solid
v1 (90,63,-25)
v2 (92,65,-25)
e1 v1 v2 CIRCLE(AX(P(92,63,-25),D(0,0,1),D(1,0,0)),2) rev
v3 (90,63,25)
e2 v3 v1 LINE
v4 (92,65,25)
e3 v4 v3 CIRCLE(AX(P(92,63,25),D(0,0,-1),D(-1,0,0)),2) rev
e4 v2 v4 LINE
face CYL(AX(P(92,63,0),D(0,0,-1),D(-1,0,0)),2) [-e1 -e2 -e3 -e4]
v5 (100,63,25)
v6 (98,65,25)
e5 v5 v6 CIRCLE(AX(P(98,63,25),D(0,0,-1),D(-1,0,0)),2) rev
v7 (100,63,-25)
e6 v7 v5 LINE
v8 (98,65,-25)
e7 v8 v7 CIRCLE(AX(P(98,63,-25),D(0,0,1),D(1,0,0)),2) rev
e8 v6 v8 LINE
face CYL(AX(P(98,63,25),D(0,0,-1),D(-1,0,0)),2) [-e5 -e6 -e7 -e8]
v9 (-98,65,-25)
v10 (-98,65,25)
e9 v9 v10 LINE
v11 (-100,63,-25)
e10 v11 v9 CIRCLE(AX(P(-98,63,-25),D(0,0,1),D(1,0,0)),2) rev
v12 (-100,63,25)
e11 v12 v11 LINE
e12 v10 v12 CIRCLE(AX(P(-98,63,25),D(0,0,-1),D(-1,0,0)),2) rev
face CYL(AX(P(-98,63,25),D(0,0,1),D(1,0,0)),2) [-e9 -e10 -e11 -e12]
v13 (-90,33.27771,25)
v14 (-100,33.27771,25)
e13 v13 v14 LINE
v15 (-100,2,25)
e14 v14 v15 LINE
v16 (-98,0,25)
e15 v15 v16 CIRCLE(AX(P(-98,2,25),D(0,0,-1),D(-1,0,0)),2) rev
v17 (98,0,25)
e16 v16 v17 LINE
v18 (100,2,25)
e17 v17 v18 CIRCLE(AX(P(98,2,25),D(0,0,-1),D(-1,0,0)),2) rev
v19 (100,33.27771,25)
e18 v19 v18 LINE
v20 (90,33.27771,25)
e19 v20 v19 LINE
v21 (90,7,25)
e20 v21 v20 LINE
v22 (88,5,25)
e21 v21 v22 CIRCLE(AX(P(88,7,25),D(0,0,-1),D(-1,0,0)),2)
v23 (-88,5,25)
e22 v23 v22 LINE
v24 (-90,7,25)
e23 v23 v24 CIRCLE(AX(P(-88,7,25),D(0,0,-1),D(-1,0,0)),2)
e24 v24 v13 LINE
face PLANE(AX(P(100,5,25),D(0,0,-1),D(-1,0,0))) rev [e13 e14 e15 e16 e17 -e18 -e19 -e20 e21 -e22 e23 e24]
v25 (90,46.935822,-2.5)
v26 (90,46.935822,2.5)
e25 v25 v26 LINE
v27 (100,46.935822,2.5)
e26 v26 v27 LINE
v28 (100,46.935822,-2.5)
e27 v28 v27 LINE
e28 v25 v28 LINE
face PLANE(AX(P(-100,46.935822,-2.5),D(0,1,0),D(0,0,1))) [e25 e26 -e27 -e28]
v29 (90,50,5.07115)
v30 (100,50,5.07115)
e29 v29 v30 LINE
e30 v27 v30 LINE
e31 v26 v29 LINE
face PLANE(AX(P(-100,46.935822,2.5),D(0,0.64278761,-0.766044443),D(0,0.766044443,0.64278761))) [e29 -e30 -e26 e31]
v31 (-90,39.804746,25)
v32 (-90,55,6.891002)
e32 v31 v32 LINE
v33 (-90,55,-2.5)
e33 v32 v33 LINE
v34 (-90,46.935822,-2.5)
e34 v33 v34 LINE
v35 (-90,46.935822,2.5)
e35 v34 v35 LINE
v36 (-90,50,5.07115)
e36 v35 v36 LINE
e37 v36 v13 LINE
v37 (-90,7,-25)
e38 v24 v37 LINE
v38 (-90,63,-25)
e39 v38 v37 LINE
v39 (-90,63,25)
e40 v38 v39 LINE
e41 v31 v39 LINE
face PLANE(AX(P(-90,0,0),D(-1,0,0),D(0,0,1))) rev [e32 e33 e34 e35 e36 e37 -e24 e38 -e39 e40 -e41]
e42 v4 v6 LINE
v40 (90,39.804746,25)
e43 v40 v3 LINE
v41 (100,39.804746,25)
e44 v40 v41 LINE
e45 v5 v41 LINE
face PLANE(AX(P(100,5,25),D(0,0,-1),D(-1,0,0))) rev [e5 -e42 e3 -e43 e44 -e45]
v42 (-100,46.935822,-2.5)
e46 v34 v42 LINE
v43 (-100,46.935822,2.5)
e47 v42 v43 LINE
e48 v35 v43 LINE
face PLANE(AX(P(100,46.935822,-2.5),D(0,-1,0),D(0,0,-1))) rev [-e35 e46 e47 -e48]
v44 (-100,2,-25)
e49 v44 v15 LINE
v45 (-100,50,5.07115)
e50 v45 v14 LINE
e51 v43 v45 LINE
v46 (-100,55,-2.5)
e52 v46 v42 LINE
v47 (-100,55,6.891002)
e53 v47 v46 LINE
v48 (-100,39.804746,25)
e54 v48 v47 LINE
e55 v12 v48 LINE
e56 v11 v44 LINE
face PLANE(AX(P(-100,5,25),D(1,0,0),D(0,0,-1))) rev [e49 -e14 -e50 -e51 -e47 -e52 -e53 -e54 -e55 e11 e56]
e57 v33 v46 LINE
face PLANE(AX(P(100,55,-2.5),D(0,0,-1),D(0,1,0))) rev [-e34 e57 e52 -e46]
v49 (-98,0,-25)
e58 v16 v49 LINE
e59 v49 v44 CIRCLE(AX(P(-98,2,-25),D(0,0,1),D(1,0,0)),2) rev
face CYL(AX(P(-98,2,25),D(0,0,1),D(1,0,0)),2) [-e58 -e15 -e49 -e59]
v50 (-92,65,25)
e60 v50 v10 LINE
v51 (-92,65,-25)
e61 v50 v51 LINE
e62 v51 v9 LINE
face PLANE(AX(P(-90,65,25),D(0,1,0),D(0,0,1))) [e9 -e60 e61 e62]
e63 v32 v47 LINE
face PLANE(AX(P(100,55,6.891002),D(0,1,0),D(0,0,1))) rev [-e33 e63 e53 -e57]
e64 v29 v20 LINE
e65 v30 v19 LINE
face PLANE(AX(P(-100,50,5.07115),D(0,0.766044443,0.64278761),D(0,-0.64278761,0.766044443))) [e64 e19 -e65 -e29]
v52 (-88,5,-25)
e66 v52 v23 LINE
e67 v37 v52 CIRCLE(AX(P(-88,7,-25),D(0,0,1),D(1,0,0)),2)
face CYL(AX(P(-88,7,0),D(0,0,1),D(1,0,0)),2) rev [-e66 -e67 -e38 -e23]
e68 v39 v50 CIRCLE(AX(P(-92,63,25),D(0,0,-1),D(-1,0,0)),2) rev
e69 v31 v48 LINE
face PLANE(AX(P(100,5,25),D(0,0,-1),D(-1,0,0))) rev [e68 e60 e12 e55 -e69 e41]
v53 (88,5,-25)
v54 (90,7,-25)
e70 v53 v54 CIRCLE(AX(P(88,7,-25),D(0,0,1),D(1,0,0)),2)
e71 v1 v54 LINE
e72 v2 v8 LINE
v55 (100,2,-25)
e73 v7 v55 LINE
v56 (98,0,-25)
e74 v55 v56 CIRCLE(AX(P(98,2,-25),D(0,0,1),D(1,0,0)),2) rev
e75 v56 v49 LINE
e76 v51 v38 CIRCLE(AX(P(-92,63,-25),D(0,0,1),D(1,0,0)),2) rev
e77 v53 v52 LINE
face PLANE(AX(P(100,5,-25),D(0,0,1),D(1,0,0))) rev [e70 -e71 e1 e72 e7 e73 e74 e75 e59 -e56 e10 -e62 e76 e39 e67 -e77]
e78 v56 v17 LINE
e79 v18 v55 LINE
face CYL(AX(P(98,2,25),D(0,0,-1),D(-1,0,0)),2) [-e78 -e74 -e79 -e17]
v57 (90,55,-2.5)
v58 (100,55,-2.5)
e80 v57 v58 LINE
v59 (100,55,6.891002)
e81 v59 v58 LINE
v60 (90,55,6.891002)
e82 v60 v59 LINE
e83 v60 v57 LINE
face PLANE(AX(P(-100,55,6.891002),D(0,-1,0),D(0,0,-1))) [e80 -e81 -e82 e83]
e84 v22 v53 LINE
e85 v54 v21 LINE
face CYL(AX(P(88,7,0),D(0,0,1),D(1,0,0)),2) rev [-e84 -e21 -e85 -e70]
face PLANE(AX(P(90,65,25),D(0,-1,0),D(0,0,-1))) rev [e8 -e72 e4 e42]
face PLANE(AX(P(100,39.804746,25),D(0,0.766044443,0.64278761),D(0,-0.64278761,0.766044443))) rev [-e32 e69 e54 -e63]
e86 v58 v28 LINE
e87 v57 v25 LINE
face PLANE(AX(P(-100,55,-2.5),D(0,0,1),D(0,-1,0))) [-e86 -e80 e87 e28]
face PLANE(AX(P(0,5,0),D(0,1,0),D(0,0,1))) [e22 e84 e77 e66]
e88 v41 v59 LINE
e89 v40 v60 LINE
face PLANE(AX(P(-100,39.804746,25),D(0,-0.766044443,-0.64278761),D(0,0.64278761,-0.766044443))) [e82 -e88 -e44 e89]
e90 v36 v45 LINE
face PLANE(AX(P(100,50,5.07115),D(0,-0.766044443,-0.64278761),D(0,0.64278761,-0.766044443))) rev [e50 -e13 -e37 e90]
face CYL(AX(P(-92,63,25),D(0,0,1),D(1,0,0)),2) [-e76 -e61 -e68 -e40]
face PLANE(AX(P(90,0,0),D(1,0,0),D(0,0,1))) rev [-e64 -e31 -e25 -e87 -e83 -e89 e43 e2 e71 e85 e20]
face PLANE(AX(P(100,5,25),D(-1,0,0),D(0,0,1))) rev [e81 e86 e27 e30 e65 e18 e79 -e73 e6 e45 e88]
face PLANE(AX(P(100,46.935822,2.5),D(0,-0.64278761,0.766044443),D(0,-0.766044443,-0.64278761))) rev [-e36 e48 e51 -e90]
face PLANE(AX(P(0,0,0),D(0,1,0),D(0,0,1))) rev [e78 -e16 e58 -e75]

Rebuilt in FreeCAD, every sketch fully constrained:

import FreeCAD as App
import Part
import Sketcher

V = App.Vector
Q = App.Units.Quantity


def edges_at(feature, points):
    """Names of the edges that pass closest to the given points."""
    edges = feature.Shape.Edges
    near = lambda p: min(range(len(edges)), key=lambda i: edges[i].distToShape(Part.Vertex(*p))[0])
    return sorted({f"Edge{near(p) + 1}" for p in points})

doc = App.newDocument("Part")
body = doc.addObject("PartDesign::Body", "Body")

# Sketch on XZ plane
sketch1 = doc.addObject("Sketcher::SketchObject", "Sketch")
body.addObject(sketch1)
sketch1.AttachmentSupport = (doc.XZ_Plane, [""])
sketch1.MapMode = "FlatFace"
sketch1.addGeometry([
    Part.LineSegment(V(-100, -25, 0), V(-100, 25, 0)),
    Part.LineSegment(V(-100, 25, 0), V(100, 25, 0)),
    Part.LineSegment(V(100, 25, 0), V(100, -25, 0)),
    Part.LineSegment(V(100, -25, 0), V(-100, -25, 0)),
], False)
sketch1.addConstraint([
    Sketcher.Constraint("Coincident", 0, 2, 1, 1),
    Sketcher.Constraint("Coincident", 1, 2, 2, 1),
    Sketcher.Constraint("Coincident", 2, 2, 3, 1),
    Sketcher.Constraint("Coincident", 3, 2, 0, 1),
    Sketcher.Constraint("Vertical", 0),
    Sketcher.Constraint("Horizontal", 1),
    Sketcher.Constraint("Vertical", 2),
    Sketcher.Constraint("Horizontal", 3),
    Sketcher.Constraint("Symmetric", 0, 2, 2, 2, -1, 1),
    Sketcher.Constraint("DistanceX", 1, 1, 1, 2, Q("200 mm")),
    Sketcher.Constraint("DistanceY", 0, 1, 0, 2, Q("50 mm")),
])
pad1 = doc.addObject("PartDesign::Pad", "Pad")
body.addObject(pad1)
pad1.Profile = sketch1
pad1.Length = 5
pad1.Reversed = True

# Sketch on YZ plane
sketch2 = doc.addObject("Sketcher::SketchObject", "Sketch001")
body.addObject(sketch2)
sketch2.AttachmentSupport = (doc.YZ_Plane, [""])
sketch2.MapMode = "FlatFace"
sketch2.AttachmentOffset = App.Placement(V(0, 0, -100), App.Rotation())
sketch2.addGeometry([
    Part.LineSegment(V(65, -25, 0), V(5, -25, 0)),
    Part.LineSegment(V(5, -25, 0), V(5, 25, 0)),
    Part.LineSegment(V(5, 25, 0), V(65, 25, 0)),
    Part.LineSegment(V(65, 25, 0), V(65, -25, 0)),
], False)
sketch2.addConstraint([
    Sketcher.Constraint("Coincident", 0, 2, 1, 1),
    Sketcher.Constraint("Coincident", 1, 2, 2, 1),
    Sketcher.Constraint("Coincident", 2, 2, 3, 1),
    Sketcher.Constraint("Coincident", 3, 2, 0, 1),
    Sketcher.Constraint("Horizontal", 0),
    Sketcher.Constraint("Vertical", 1),
    Sketcher.Constraint("Horizontal", 2),
    Sketcher.Constraint("Vertical", 3),
    Sketcher.Constraint("DistanceX", 0, 2, 0, 1, Q("60 mm")),
    Sketcher.Constraint("DistanceY", 1, 1, 1, 2, Q("50 mm")),
    Sketcher.Constraint("DistanceX", -1, 1, 0, 2, Q("5 mm")),
    Sketcher.Constraint("DistanceY", 0, 2, -1, 1, Q("25 mm")),
])
pad2 = doc.addObject("PartDesign::Pad", "Pad001")
body.addObject(pad2)
pad2.Profile = sketch2
pad2.Length = 10

# Sketch on YZ plane
sketch3 = doc.addObject("Sketcher::SketchObject", "Sketch002")
body.addObject(sketch3)
sketch3.AttachmentSupport = (doc.YZ_Plane, [""])
sketch3.MapMode = "FlatFace"
sketch3.AttachmentOffset = App.Placement(V(0, 0, 101), App.Rotation())
sketch3.addGeometry([
    Part.LineSegment(V(39.804746, 25, 0), V(55, 6.891002, 0)),  # 0
    Part.LineSegment(V(55, 6.891002, 0), V(55, -2.5, 0)),  # 1
    Part.LineSegment(V(55, -2.5, 0), V(46.935822, -2.5, 0)),  # 2
    Part.LineSegment(V(46.935822, -2.5, 0), V(46.935822, 2.5, 0)),  # 3
    Part.LineSegment(V(46.935822, 2.5, 0), V(50, 5.07115, 0)),  # 4
    Part.LineSegment(V(50, 5.07115, 0), V(33.27771, 25, 0)),  # 5
    Part.LineSegment(V(33.27771, 25, 0), V(39.804746, 25, 0)),  # 6
], False)
sketch3.addConstraint([
    Sketcher.Constraint("Coincident", 0, 2, 1, 1),
    Sketcher.Constraint("Coincident", 1, 2, 2, 1),
    Sketcher.Constraint("Coincident", 2, 2, 3, 1),
    Sketcher.Constraint("Coincident", 3, 2, 4, 1),
    Sketcher.Constraint("Coincident", 4, 2, 5, 1),
    Sketcher.Constraint("Coincident", 5, 2, 6, 1),
    Sketcher.Constraint("Coincident", 6, 2, 0, 1),
    Sketcher.Constraint("Vertical", 1),
    Sketcher.Constraint("Horizontal", 2),
    Sketcher.Constraint("Vertical", 3),
    Sketcher.Constraint("Horizontal", 6),
    Sketcher.Constraint("Perpendicular", 0, 4),
    Sketcher.Constraint("Perpendicular", 4, 5),
    Sketcher.Constraint("DistanceY", 3, 1, 3, 2, Q("5 mm")),
    Sketcher.Constraint("Angle", 0, Q("-50 deg")),
    Sketcher.Constraint("Distance", 4, Q("4 mm")),
    Sketcher.Constraint("DistanceX", -1, 1, 0, 2, Q("55 mm")),
    Sketcher.Constraint("DistanceX", -1, 1, 4, 2, Q("50 mm")),
    Sketcher.Constraint("DistanceY", -1, 1, 5, 2, Q("25 mm")),
    Sketcher.Constraint("DistanceY", 1, 2, -1, 1, Q("2.5 mm")),
    Sketcher.Constraint("DistanceY", 1, 2, 1, 1, Q("9.391002 mm")),
])
pocket1 = doc.addObject("PartDesign::Pocket", "Pocket")
body.addObject(pocket1)
pocket1.Profile = sketch3
pocket1.Length = 202
doc.recompute()

mirrored = doc.addObject("PartDesign::Mirrored", "Mirrored")
body.addObject(mirrored)
mirrored.Originals = [pad2, pocket1]
mirrored.MirrorPlane = (doc.YZ_Plane, [""])
body.Tip = mirrored
doc.recompute()

fillet = doc.addObject("PartDesign::Fillet", "Fillet")
body.addObject(fillet)
fillet.Base = (mirrored, edges_at(mirrored, [
    (-90, 5, 0),
    (-90, 65, 0),
    (-100, 65, 0),
    (100, 0, 0),
    (100, 65, 0),
    (-100, 0, 0),
    (90, 5, 0),
    (90, 65, 0),
]))
fillet.Radius = 2

doc.recompute()
